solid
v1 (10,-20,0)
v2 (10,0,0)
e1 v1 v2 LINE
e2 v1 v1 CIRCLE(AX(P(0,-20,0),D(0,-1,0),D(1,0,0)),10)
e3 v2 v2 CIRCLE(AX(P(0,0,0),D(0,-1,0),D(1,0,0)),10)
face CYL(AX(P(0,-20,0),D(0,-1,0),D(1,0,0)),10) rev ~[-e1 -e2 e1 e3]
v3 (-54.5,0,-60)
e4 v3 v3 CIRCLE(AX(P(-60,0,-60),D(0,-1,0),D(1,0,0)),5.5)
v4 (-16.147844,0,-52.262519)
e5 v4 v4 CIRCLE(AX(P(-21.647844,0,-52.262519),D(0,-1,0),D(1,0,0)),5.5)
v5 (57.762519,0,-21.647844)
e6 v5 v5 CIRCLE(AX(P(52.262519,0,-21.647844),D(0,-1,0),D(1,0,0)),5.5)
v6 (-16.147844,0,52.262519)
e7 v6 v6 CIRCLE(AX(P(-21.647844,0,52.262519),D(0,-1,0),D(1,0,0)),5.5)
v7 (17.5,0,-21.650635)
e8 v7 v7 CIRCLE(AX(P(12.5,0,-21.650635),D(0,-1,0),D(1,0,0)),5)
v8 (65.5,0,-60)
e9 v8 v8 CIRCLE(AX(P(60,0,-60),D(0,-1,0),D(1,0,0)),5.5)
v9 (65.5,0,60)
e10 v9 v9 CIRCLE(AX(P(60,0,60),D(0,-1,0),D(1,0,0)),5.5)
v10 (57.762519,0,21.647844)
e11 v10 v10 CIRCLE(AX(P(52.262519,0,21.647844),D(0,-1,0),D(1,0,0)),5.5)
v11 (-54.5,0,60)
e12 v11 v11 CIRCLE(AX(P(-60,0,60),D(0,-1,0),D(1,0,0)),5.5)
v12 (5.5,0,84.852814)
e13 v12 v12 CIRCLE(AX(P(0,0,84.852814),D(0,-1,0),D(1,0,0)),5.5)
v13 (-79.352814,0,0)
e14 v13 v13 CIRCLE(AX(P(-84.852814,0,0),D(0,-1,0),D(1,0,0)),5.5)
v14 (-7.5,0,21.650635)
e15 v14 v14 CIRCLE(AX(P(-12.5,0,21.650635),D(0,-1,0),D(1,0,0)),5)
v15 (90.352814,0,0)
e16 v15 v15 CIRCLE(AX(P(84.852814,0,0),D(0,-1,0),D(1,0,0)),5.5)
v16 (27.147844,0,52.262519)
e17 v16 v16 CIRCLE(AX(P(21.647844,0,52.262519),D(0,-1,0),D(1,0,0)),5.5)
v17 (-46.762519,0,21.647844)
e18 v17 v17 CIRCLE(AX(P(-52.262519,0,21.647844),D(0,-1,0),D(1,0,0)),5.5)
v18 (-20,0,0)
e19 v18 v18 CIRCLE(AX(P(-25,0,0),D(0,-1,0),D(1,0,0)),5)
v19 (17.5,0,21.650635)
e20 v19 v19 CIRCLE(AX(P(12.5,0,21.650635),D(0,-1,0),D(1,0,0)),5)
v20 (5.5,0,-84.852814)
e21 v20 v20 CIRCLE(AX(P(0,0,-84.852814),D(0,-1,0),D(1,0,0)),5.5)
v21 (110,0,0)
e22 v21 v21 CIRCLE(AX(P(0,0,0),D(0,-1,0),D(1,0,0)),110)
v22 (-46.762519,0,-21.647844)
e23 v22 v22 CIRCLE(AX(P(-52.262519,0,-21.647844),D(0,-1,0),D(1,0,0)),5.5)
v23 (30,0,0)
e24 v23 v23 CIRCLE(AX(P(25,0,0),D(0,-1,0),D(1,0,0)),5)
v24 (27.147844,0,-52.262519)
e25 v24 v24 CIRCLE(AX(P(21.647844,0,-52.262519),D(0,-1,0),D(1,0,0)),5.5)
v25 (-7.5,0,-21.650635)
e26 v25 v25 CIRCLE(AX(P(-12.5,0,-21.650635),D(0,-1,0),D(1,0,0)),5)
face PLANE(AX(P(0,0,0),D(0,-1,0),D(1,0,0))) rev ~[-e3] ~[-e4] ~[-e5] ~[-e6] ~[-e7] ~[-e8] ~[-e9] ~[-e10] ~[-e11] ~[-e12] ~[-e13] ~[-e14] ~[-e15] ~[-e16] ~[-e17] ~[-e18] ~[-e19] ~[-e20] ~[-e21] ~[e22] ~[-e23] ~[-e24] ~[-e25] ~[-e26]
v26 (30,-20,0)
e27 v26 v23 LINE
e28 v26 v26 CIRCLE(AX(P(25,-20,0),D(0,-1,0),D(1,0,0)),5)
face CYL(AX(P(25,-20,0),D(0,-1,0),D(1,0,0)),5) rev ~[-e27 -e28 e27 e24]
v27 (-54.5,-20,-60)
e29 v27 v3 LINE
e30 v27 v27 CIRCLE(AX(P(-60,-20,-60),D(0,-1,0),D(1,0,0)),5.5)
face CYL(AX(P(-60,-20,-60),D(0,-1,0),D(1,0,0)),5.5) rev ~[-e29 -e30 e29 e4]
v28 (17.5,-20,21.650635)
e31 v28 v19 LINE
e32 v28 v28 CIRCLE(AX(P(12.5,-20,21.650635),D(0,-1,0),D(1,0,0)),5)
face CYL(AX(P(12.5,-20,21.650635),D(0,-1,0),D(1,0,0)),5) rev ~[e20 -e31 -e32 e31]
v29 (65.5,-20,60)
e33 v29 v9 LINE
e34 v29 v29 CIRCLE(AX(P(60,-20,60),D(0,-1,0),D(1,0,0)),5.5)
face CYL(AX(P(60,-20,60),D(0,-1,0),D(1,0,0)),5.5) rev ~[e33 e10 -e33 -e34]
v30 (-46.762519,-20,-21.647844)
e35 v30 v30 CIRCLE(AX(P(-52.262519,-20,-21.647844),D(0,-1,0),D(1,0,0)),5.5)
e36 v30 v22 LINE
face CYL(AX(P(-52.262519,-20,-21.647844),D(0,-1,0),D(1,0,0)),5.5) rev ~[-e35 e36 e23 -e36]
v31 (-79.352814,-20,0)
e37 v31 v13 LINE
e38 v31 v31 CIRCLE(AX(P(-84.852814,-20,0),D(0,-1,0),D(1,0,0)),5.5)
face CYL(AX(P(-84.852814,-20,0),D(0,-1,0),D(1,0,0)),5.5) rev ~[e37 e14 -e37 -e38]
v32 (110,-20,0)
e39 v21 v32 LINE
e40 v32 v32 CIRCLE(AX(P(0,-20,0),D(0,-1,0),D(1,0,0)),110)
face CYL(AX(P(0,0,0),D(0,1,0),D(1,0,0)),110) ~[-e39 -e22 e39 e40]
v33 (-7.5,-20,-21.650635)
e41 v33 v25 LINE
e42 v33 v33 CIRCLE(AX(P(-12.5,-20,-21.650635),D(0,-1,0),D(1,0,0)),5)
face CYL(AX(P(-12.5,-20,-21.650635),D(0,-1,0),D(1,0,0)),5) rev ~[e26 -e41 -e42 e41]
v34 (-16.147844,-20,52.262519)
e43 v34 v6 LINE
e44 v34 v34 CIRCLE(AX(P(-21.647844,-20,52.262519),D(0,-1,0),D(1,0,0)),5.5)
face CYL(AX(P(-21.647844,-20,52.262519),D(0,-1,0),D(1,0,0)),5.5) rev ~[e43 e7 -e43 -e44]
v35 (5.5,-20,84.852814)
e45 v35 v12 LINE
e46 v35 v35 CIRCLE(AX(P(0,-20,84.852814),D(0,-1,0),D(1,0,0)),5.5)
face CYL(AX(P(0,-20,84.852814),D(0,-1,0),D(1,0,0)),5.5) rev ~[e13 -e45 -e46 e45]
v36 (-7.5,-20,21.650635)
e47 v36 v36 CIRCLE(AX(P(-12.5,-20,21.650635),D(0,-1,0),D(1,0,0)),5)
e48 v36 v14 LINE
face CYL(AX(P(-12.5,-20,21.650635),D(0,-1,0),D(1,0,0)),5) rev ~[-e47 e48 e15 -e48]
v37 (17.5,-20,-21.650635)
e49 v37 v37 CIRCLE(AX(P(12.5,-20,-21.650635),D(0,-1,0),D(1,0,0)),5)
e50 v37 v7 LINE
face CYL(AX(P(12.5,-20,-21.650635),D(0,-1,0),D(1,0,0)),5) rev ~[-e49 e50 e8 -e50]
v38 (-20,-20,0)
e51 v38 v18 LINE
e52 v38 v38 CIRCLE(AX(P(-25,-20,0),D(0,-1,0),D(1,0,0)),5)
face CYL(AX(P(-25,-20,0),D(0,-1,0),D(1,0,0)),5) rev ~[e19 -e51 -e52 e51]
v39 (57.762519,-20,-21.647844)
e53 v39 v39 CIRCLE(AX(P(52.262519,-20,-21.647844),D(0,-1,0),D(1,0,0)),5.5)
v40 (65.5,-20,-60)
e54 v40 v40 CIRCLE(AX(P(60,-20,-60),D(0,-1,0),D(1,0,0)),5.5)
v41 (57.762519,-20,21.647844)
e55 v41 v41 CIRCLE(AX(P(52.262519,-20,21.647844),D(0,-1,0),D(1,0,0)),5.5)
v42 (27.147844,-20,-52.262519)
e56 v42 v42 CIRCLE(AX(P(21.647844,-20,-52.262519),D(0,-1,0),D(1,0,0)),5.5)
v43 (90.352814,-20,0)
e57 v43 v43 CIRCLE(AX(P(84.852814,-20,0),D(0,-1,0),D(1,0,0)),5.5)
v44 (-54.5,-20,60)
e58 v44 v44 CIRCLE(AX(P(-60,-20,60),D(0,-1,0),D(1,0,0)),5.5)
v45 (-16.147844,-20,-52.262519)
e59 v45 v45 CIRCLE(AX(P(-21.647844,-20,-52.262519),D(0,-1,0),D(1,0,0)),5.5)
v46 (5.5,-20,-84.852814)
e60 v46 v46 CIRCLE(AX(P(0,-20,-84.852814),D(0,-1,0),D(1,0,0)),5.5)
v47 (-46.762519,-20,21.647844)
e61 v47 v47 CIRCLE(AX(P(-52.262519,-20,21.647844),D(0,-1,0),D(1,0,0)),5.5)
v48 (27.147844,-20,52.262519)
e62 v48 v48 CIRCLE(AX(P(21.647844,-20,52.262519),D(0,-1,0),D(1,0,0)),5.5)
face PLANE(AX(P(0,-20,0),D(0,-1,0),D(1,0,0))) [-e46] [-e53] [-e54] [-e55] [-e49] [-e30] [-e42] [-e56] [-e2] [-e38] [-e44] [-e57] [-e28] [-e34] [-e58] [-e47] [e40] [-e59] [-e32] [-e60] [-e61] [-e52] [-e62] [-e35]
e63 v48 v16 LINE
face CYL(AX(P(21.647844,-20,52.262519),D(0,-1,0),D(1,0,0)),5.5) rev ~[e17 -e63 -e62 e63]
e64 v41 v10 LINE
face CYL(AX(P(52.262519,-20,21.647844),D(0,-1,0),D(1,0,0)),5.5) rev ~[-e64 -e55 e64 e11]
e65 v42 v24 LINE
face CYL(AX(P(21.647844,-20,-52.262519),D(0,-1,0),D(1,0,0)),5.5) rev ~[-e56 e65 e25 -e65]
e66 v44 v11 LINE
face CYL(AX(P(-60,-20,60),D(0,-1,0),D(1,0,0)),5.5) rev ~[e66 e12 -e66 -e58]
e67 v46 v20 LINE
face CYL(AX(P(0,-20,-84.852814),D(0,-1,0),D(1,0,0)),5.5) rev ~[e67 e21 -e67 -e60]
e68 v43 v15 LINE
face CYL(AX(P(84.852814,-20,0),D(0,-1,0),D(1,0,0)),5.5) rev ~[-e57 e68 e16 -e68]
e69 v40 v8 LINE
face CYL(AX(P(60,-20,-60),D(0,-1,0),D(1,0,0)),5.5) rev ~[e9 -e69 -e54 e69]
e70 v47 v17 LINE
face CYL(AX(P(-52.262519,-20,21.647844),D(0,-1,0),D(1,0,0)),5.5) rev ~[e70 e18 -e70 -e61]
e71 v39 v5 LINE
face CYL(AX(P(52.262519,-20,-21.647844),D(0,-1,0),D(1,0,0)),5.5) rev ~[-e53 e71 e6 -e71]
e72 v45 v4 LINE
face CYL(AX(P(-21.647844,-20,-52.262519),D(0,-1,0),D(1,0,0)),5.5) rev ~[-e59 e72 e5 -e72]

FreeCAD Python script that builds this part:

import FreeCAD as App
import Part
import Sketcher

V = App.Vector
Q = App.Units.Quantity

doc = App.newDocument("Part")
body = doc.addObject("PartDesign::Body", "Body")

# Sketch on XZ plane
sketch1 = body.newObject("Sketcher::SketchObject", "Sketch")
sketch1.AttachmentSupport = (doc.getObject("XZ_Plane"), [""])
sketch1.MapMode = "FlatFace"
sketch1.addGeometry(Part.Circle(V(0, 0, 0), V(0, 0, 1), 110), False)
sketch1.addConstraint([
    Sketcher.Constraint("Coincident", 0, 3, -1, 1),
    Sketcher.Constraint("Diameter", 0, Q("220 mm")),
])
pad1 = body.newObject("PartDesign::Pad", "Pad")
pad1.Profile = sketch1
pad1.Length = 20

# Sketch on XZ plane
sketch2 = body.newObject("Sketcher::SketchObject", "Sketch001")
sketch2.AttachmentSupport = (doc.getObject("XZ_Plane"), [""])
sketch2.MapMode = "FlatFace"
sketch2.AttachmentOffset = App.Placement(V(0, 0, 20), App.Rotation())
sketch2.addGeometry([
    Part.Circle(V(85, 0, 0), V(0, 0, 1), 6),  # 0
    Part.Circle(V(60, 60, 0), V(0, 0, 1), 6),  # 1
    Part.Circle(V(0, 85, 0), V(0, 0, 1), 6),  # 2
    Part.Circle(V(-60, 60, 0), V(0, 0, 1), 6),  # 3
    Part.Circle(V(-85, 0, 0), V(0, 0, 1), 6),  # 4
    Part.Circle(V(-60, -60, 0), V(0, 0, 1), 6),  # 5
    Part.Circle(V(0, -85, 0), V(0, 0, 1), 6),  # 6
    Part.Circle(V(60, -60, 0), V(0, 0, 1), 6),  # 7
    Part.Circle(V(0, 0, 0), V(0, 0, 1), 10),  # 8
    Part.Circle(V(52, 22, 0), V(0, 0, 1), 6),  # 9
    Part.Circle(V(52, -22, 0), V(0, 0, 1), 6),  # 10
    Part.Circle(V(22, -52, 0), V(0, 0, 1), 6),  # 11
    Part.Circle(V(-22, -52, 0), V(0, 0, 1), 6),  # 12
    Part.Circle(V(-52, -22, 0), V(0, 0, 1), 6),  # 13
    Part.Circle(V(-52, 22, 0), V(0, 0, 1), 6),  # 14
    Part.Circle(V(-22, 52, 0), V(0, 0, 1), 6),  # 15
    Part.Circle(V(22, 52, 0), V(0, 0, 1), 6),  # 16
], False)
sketch2.addConstraint([
    Sketcher.Constraint("Coincident", 8, 3, -1, 1),
    Sketcher.Constraint("Equal", 0, 1),
    Sketcher.Constraint("Equal", 1, 2),
    Sketcher.Constraint("Equal", 2, 3),
    Sketcher.Constraint("Equal", 3, 4),
    Sketcher.Constraint("Equal", 4, 5),
    Sketcher.Constraint("Equal", 5, 6),
    Sketcher.Constraint("Equal", 6, 7),
    Sketcher.Constraint("Equal", 7, 9),
    Sketcher.Constraint("Equal", 9, 10),
    Sketcher.Constraint("Equal", 10, 11),
    Sketcher.Constraint("Equal", 11, 12),
    Sketcher.Constraint("Equal", 12, 13),
    Sketcher.Constraint("Equal", 13, 14),
    Sketcher.Constraint("Equal", 14, 15),
    Sketcher.Constraint("Equal", 15, 16),
    Sketcher.Constraint("Symmetric", 0, 3, 4, 3, -1, 1),
    Sketcher.Constraint("Symmetric", 1, 3, 5, 3, -1, 1),
    Sketcher.Constraint("Symmetric", 2, 3, 6, 3, -1, 1),
    Sketcher.Constraint("Symmetric", 3, 3, 7, 3, -1, 1),
    Sketcher.Constraint("Symmetric", 9, 3, 13, 3, -1, 1),
    Sketcher.Constraint("Symmetric", 10, 3, 14, 3, -1, 1),
    Sketcher.Constraint("Symmetric", 11, 3, 15, 3, -1, 1),
    Sketcher.Constraint("Symmetric", 12, 3, 16, 3, -1, 1),
    Sketcher.Constraint("Symmetric", 1, 3, 3, 3, -2),
    Sketcher.Constraint("Symmetric", 11, 3, 12, 3, -2),
    Sketcher.Constraint("Symmetric", 10, 3, 13, 3, -2),
    Sketcher.Constraint("PointOnObject", 0, 3, -1),
    Sketcher.Constraint("PointOnObject", 2, 3, -2),
    Sketcher.Constraint("Diameter", 0, Q("11 mm")),
    Sketcher.Constraint("Diameter", 8, Q("20 mm")),
    Sketcher.Constraint("DistanceX", -1, 1, 1, 3, Q("60 mm")),
    Sketcher.Constraint("DistanceY", -1, 1, 1, 3, Q("60 mm")),
    Sketcher.Constraint("DistanceX", -1, 1, 9, 3, Q("52.262519 mm")),
    Sketcher.Constraint("DistanceY", 11, 3, -1, 1, Q("52.262519 mm")),
    Sketcher.Constraint("DistanceY", 9, 3, 2, 3, Q("63.20497 mm")),
    Sketcher.Constraint("DistanceX", -1, 1, 0, 3, Q("84.852814 mm")),
    Sketcher.Constraint("DistanceY", -1, 1, 2, 3, Q("84.852814 mm")),
    Sketcher.Constraint("DistanceX", -1, 1, 11, 3, Q("21.647844 mm")),
])
pocket1 = body.newObject("PartDesign::Pocket", "Pocket")
pocket1.Profile = sketch2
pocket1.Length = 25

# Sketch on XZ plane
sketch3 = body.newObject("Sketcher::SketchObject", "Sketch002")
sketch3.AttachmentSupport = (doc.getObject("XZ_Plane"), [""])
sketch3.MapMode = "FlatFace"
sketch3.AttachmentOffset = App.Placement(V(0, 0, 20), App.Rotation())
sketch3.addGeometry([
    Part.Circle(V(25, 0, 0), V(0, 0, 1), 5),  # 0
    Part.Circle(V(12, 22, 0), V(0, 0, 1), 5),  # 1
    Part.Circle(V(-12, 22, 0), V(0, 0, 1), 5),  # 2
    Part.Circle(V(-25, 0, 0), V(0, 0, 1), 5),  # 3
    Part.Circle(V(-12, -22, 0), V(0, 0, 1), 5),  # 4
    Part.Circle(V(12, -22, 0), V(0, 0, 1), 5),  # 5
], False)
sketch3.addConstraint([
    Sketcher.Constraint("Equal", 0, 1),
    Sketcher.Constraint("Equal", 1, 2),
    Sketcher.Constraint("Equal", 2, 3),
    Sketcher.Constraint("Equal", 3, 4),
    Sketcher.Constraint("Equal", 4, 5),
    Sketcher.Constraint("Symmetric", 0, 3, 3, 3, -1, 1),
    Sketcher.Constraint("Symmetric", 1, 3, 4, 3, -1, 1),
    Sketcher.Constraint("Symmetric", 2, 3, 5, 3, -1, 1),
    Sketcher.Constraint("Symmetric", 1, 3, 2, 3, -2),
    Sketcher.Constraint("PointOnObject", 0, 3, -1),
    Sketcher.Constraint("Diameter", 0, Q("10 mm")),
    Sketcher.Constraint("DistanceX", -1, 1, 0, 3, Q("25 mm")),
    Sketcher.Constraint("DistanceX", 2, 3, 1, 3, Q("25 mm")),
    Sketcher.Constraint("DistanceY", 4, 3, 2, 3, Q("43.30127 mm")),
])
pocket2 = body.newObject("PartDesign::Pocket", "Pocket001")
pocket2.Profile = sketch3
pocket2.Length = 25

doc.recompute()
